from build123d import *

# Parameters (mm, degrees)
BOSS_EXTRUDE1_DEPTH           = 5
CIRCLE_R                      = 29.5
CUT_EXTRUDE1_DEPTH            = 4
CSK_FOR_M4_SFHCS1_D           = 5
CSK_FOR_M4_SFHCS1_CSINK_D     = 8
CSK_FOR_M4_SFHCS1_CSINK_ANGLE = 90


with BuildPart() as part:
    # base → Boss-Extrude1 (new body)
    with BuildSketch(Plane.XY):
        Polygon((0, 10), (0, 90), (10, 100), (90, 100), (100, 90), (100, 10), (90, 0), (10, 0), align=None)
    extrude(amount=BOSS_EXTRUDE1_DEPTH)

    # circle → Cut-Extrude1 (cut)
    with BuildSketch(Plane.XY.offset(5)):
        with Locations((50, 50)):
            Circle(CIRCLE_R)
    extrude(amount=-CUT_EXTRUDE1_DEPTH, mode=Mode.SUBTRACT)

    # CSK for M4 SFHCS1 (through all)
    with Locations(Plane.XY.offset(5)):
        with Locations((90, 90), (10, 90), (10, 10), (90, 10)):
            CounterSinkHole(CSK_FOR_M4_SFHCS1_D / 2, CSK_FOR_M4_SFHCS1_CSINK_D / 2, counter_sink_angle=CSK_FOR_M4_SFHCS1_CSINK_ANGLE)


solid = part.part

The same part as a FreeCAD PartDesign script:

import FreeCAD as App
import Part
import Sketcher
from FreeCAD import Vector
Q = App.Units.Quantity


def add_polygon(sketch, points):
    """Adds a closed chain of lines whose ends are joined by coincident constraints."""
    first, n = sketch.GeometryCount, len(points)
    for a, b in zip(points, points[1:] + points[:1]):
        sketch.addGeometry(Part.LineSegment(App.Vector(*a, 0), App.Vector(*b, 0)), False)
    for i in range(n):
        sketch.addConstraint(Sketcher.Constraint("Coincident", first + i, 2, first + (i + 1) % n, 1))

doc = App.newDocument("Part")
body = doc.addObject("PartDesign::Body", "Body")

sketch1 = body.newObject("Sketcher::SketchObject", "Sketch")
sketch1.AttachmentSupport = (doc.getObject("XY_Plane"), [""])
sketch1.MapMode = "FlatFace"
add_polygon(sketch1, [(0, 90), (0, 10), (10, 0), (90, 0), (100, 10), (100, 90), (90, 100), (10, 100)])
sketch1.addConstraint([
    Sketcher.Constraint("Vertical", 0),
    Sketcher.Constraint("Horizontal", 2),
    Sketcher.Constraint("Vertical", 4),
    Sketcher.Constraint("Horizontal", 6),
    Sketcher.Constraint("PointOnObject", 0, 2, -2),
    Sketcher.Constraint("PointOnObject", 1, 2, -1),
    Sketcher.Constraint("Perpendicular", 1, 3),
    Sketcher.Constraint("Perpendicular", 3, 5),
    Sketcher.Constraint("Perpendicular", 5, 7),
    Sketcher.Constraint("Horizontal", 0, 2, 3, 2),
    Sketcher.Constraint("Horizontal", 4, 2, 7, 2),
    Sketcher.Constraint("Vertical", 2, 2, 5, 2),
    Sketcher.Constraint("Vertical", 1, 2, 6, 2),
    Sketcher.Constraint("Equal", 6, 0),
    Sketcher.Constraint("DistanceX", 2, 1, 2, 2, Q("80 mm")),
    Sketcher.Constraint("DistanceY", -1, 1, 0, 2, Q("10 mm")),
])
pad1 = body.newObject("PartDesign::Pad", "Pad")
pad1.Profile = sketch1
pad1.Length = 5

sketch2 = body.newObject("Sketcher::SketchObject", "Sketch001")
sketch2.AttachmentSupport = (doc.getObject("XY_Plane"), [""])
sketch2.MapMode = "FlatFace"
sketch2.AttachmentOffset = App.Placement(Vector(0, 0, 5), App.Rotation())
sketch2.addGeometry(Part.Circle(Vector(50, 50, 0), Vector(0, 0, 1), 29.5), False)
sketch2.addConstraint([
    Sketcher.Constraint("Diameter", 0, Q("59 mm")),
    Sketcher.Constraint("DistanceX", -1, 1, 0, 3, Q("50 mm")),
    Sketcher.Constraint("DistanceY", -1, 1, 0, 3, Q("50 mm")),
])
pocket1 = body.newObject("PartDesign::Pocket", "Pocket")
pocket1.Profile = sketch2
pocket1.Length = 4

sketch3 = body.newObject("Sketcher::SketchObject", "Sketch002")
sketch3.AttachmentSupport = (doc.getObject("XY_Plane"), [""])
sketch3.MapMode = "FlatFace"
sketch3.AttachmentOffset = App.Placement(Vector(0, 0, 5), App.Rotation())
sketch3.addGeometry([
    Part.Circle(Vector(90, 90, 0), Vector(0, 0, 1), 2.5),
    Part.Circle(Vector(10, 90, 0), Vector(0, 0, 1), 2.5),
    Part.Circle(Vector(10, 10, 0), Vector(0, 0, 1), 2.5),
    Part.Circle(Vector(90, 10, 0), Vector(0, 0, 1), 2.5),
], False)
sketch3.addConstraint([
    Sketcher.Constraint("Equal", 0, 1),
    Sketcher.Constraint("Equal", 1, 2),
    Sketcher.Constraint("Equal", 2, 3),
    Sketcher.Constraint("Horizontal", 0, 3, 1, 3),
    Sketcher.Constraint("Horizontal", 2, 3, 3, 3),
    Sketcher.Constraint("Vertical", 1, 3, 2, 3),
    Sketcher.Constraint("Vertical", 0, 3, 3, 3),
    Sketcher.Constraint("Diameter", 0, Q("5 mm")),
    Sketcher.Constraint("DistanceX", -1, 1, 0, 3, Q("90 mm")),
    Sketcher.Constraint("DistanceY", -1, 1, 0, 3, Q("90 mm")),
    Sketcher.Constraint("DistanceX", -1, 1, 1, 3, Q("10 mm")),
    Sketcher.Constraint("DistanceY", -1, 1, 2, 3, Q("10 mm")),
])
doc.recompute()
hole = body.newObject("PartDesign::Hole", "Hole")
hole.Profile = sketch3
hole.ThreadType = "None"
hole.Diameter = 5
hole.DepthType = "ThroughAll"
hole.HoleCutType = "Countersink"
hole.HoleCutDiameter = 8
hole.HoleCutCountersinkAngle = 90

doc.recompute()
